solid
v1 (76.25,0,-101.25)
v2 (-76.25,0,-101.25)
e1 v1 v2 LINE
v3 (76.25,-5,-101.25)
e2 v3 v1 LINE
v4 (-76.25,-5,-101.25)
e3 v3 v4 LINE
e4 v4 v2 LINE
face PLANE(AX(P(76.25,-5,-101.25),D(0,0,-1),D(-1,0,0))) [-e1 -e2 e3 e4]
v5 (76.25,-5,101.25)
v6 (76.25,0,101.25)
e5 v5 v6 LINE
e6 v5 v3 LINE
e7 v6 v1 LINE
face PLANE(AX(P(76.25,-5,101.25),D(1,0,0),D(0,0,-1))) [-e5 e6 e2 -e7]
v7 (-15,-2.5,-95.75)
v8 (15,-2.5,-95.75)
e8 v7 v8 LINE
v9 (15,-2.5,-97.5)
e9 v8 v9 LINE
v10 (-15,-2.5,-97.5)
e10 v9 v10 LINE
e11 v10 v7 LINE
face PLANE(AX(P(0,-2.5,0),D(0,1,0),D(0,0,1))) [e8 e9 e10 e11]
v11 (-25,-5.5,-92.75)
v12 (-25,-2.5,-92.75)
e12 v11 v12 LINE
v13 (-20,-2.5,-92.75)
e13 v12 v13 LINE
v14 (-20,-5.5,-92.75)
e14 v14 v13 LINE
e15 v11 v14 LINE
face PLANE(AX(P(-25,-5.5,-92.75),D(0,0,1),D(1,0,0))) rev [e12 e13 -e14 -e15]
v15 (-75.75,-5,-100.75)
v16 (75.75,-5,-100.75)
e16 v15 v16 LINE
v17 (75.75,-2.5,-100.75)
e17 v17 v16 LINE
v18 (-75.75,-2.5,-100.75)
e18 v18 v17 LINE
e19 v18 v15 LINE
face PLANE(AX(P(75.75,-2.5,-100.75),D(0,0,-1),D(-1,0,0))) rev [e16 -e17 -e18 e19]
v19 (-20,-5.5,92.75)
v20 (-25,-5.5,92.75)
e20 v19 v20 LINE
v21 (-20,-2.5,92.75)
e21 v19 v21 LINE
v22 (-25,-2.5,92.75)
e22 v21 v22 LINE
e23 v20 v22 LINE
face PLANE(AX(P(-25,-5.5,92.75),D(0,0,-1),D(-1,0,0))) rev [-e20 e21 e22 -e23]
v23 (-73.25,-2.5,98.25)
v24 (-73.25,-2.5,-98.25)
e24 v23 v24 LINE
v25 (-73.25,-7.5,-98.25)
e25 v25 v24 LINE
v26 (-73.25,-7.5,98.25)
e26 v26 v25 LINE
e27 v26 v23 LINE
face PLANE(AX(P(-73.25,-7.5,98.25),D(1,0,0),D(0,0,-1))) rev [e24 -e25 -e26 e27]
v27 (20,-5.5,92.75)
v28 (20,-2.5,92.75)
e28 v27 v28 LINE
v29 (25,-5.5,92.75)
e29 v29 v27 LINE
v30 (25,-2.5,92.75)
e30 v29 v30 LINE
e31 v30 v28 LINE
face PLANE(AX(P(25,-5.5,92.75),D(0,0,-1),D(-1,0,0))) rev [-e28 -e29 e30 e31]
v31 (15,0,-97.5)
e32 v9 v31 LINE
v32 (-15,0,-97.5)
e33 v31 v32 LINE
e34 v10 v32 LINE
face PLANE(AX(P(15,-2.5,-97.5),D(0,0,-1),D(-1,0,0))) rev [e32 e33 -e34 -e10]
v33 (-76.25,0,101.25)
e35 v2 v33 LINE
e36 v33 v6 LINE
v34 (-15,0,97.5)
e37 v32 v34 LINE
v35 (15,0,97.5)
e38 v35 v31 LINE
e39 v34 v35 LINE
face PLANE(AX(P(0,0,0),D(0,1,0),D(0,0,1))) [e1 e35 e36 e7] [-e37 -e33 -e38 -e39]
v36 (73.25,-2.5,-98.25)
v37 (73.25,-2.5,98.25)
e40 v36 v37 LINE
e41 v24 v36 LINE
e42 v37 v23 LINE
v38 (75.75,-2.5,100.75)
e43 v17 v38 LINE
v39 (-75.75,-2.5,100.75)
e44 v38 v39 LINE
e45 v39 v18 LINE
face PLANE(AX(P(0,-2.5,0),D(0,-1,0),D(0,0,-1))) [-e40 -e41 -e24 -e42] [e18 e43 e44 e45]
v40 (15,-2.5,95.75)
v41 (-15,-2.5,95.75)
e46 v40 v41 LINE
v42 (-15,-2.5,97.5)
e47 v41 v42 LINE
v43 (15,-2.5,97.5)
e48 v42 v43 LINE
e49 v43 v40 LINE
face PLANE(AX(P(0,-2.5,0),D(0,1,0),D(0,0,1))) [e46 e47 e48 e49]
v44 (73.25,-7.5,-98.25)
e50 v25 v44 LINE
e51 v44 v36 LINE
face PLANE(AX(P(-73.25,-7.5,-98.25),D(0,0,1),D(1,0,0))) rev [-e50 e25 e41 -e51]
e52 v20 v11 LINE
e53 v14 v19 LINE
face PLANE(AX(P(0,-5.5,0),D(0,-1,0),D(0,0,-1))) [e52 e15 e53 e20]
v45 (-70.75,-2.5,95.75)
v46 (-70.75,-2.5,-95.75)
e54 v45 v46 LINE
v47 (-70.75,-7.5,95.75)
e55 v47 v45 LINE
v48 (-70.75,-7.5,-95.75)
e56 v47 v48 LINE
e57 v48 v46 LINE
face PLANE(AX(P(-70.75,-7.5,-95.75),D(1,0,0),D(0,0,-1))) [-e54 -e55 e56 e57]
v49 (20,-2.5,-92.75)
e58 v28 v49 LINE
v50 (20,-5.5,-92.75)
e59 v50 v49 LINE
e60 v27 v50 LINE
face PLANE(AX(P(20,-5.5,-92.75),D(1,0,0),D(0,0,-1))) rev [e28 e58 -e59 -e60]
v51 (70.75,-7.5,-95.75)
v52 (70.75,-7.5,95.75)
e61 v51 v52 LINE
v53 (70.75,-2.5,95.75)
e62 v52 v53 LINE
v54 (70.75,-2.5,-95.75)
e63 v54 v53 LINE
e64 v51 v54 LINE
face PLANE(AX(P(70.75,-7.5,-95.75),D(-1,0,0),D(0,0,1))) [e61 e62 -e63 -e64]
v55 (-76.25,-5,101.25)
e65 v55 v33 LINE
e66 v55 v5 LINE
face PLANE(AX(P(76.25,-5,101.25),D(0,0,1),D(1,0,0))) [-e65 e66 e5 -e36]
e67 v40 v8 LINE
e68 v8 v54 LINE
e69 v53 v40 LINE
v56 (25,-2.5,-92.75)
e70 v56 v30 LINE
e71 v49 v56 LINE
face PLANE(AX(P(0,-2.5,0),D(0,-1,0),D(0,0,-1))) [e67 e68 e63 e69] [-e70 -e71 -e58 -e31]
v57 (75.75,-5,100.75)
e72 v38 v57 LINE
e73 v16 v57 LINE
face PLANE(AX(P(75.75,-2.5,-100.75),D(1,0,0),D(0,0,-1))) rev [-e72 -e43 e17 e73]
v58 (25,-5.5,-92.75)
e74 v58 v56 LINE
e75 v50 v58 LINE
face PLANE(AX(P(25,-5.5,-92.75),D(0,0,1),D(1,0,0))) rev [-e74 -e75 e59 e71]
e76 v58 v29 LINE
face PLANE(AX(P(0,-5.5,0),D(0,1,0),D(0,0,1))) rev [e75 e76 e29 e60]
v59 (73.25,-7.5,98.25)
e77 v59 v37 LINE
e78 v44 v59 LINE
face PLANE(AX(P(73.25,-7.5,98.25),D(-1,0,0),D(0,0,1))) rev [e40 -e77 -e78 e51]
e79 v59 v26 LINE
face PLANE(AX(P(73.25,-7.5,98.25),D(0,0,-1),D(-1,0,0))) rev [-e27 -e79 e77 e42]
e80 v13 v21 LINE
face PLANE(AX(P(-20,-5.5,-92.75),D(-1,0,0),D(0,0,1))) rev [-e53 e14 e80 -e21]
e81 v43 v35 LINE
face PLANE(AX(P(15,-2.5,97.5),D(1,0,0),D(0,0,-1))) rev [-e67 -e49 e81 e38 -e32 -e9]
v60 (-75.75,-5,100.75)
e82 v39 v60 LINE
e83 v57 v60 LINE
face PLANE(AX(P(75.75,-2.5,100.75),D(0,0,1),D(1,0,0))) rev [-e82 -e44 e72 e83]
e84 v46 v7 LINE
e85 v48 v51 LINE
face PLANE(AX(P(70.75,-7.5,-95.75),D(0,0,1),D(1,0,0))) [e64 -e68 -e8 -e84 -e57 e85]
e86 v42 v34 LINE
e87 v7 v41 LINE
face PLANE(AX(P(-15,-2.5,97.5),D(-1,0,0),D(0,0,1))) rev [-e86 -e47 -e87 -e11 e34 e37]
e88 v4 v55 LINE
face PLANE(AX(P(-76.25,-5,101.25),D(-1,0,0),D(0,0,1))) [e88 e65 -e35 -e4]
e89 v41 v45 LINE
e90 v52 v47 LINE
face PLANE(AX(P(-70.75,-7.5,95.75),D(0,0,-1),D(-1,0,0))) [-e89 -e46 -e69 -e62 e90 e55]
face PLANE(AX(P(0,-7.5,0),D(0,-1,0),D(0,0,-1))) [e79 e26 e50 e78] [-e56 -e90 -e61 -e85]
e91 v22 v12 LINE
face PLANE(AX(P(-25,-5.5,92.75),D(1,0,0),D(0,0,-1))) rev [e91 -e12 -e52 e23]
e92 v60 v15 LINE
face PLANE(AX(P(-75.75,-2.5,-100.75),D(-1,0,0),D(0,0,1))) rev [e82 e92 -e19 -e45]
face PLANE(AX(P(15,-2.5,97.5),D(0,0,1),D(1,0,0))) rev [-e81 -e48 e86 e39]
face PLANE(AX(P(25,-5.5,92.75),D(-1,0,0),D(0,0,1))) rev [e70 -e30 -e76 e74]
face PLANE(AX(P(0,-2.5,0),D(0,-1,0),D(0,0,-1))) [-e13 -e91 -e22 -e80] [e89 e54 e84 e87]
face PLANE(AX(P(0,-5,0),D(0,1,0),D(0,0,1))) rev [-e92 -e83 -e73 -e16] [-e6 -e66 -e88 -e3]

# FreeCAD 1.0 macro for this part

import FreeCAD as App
import Part
import Sketcher

doc = App.newDocument("Part")
params = doc.addObject("Spreadsheet::Sheet", "Params")
for row, (alias, value) in enumerate([
    ("sketch1_width", "152.5 mm"),
    ("sketch1_height", "202.5 mm"),
    ("pad1_length", "5 mm"),
    ("sketch2_width", "151.5 mm"),
    ("sketch2_height", "201.5 mm"),
    ("pocket1_length", "2.5 mm"),
    ("sketch3_width", "146.5 mm"),
    ("sketch3_width2", "141.5 mm"),
    ("sketch3_height", "196.5 mm"),
    ("sketch3_height2", "191.5 mm"),
    ("pad2_length", "5 mm"),
    ("sketch4_width", "30 mm"),
    ("sketch4_height", "195 mm"),
    ("pocket2_length", "2.5 mm"),
    ("sketch5_width", "5 mm"),
    ("sketch5_height", "185.5 mm"),
    ("pad3_length", "3 mm"),
], start=1):
    params.set(f"A{row}", alias)
    params.set(f"B{row}", "=" + value)
    params.setAlias(f"B{row}", alias)

body = doc.addObject("PartDesign::Body", "Body")

sketch1 = body.newObject("Sketcher::SketchObject", "Sketch")
sketch1.AttachmentSupport = (doc.getObject("XZ_Plane"), [""])
sketch1.MapMode = "FlatFace"
sketch1.addGeometry(Part.LineSegment(App.Vector(-76, -101, 0), App.Vector(-76, 101, 0)), False)
sketch1.addGeometry(Part.LineSegment(App.Vector(-76, 101, 0), App.Vector(76, 101, 0)), False)
sketch1.addGeometry(Part.LineSegment(App.Vector(76, 101, 0), App.Vector(76, -101, 0)), False)
sketch1.addGeometry(Part.LineSegment(App.Vector(76, -101, 0), App.Vector(-76, -101, 0)), False)
sketch1.addConstraint(Sketcher.Constraint("Coincident", 0, 2, 1, 1))
sketch1.addConstraint(Sketcher.Constraint("Coincident", 1, 2, 2, 1))
sketch1.addConstraint(Sketcher.Constraint("Coincident", 2, 2, 3, 1))
sketch1.addConstraint(Sketcher.Constraint("Coincident", 3, 2, 0, 1))
sketch1.addConstraint(Sketcher.Constraint("Vertical", 0))
sketch1.addConstraint(Sketcher.Constraint("Horizontal", 1))
sketch1.addConstraint(Sketcher.Constraint("Vertical", 2))
sketch1.addConstraint(Sketcher.Constraint("Horizontal", 3))
sketch1.addConstraint(Sketcher.Constraint("Symmetric", 0, 2, 2, 2, -1, 1))
sketch1.addConstraint(Sketcher.Constraint("DistanceX", 1, 1, 1, 2, 152.5))
sketch1.addConstraint(Sketcher.Constraint("DistanceY", 0, 1, 0, 2, 202.5))
sketch1.setExpression("Constraints[9]", "Params.sketch1_width")
sketch1.setExpression("Constraints[10]", "Params.sketch1_height")
pad1 = body.newObject("PartDesign::Pad", "Pad")
pad1.Profile = sketch1
pad1.setExpression("Length", "Params.pad1_length")

sketch2 = body.newObject("Sketcher::SketchObject", "Sketch001")
sketch2.AttachmentSupport = (doc.getObject("XZ_Plane"), [""])
sketch2.MapMode = "FlatFace"
sketch2.AttachmentOffset = App.Placement(App.Vector(0, 0, 5), App.Rotation())
sketch2.addGeometry(Part.LineSegment(App.Vector(-76, 101, 0), App.Vector(-76, -101, 0)), False)
sketch2.addGeometry(Part.LineSegment(App.Vector(-76, -101, 0), App.Vector(76, -101, 0)), False)
sketch2.addGeometry(Part.LineSegment(App.Vector(76, -101, 0), App.Vector(76, 101, 0)), False)
sketch2.addGeometry(Part.LineSegment(App.Vector(76, 101, 0), App.Vector(-76, 101, 0)), False)
sketch2.addConstraint(Sketcher.Constraint("Coincident", 0, 2, 1, 1))
sketch2.addConstraint(Sketcher.Constraint("Coincident", 1, 2, 2, 1))
sketch2.addConstraint(Sketcher.Constraint("Coincident", 2, 2, 3, 1))
sketch2.addConstraint(Sketcher.Constraint("Coincident", 3, 2, 0, 1))
sketch2.addConstraint(Sketcher.Constraint("Vertical", 0))
sketch2.addConstraint(Sketcher.Constraint("Horizontal", 1))
sketch2.addConstraint(Sketcher.Constraint("Vertical", 2))
sketch2.addConstraint(Sketcher.Constraint("Horizontal", 3))
sketch2.addConstraint(Sketcher.Constraint("Symmetric", 0, 2, 2, 2, -1, 1))
sketch2.addConstraint(Sketcher.Constraint("DistanceX", 1, 1, 1, 2, 151.5))
sketch2.addConstraint(Sketcher.Constraint("DistanceY", 0, 2, 0, 1, 201.5))
sketch2.setExpression("Constraints[9]", "Params.sketch2_width")
sketch2.setExpression("Constraints[10]", "Params.sketch2_height")
pocket1 = body.newObject("PartDesign::Pocket", "Pocket")
pocket1.Profile = sketch2
pocket1.setExpression("Length", "Params.pocket1_length")

sketch3 = body.newObject("Sketcher::SketchObject", "Sketch002")
sketch3.AttachmentSupport = (doc.getObject("XZ_Plane"), [""])
sketch3.MapMode = "FlatFace"
sketch3.AttachmentOffset = App.Placement(App.Vector(0, 0, 2.5), App.Rotation())
sketch3.addGeometry(Part.LineSegment(App.Vector(-73, 98, 0), App.Vector(-73, -98, 0)), False)
sketch3.addGeometry(Part.LineSegment(App.Vector(-73, -98, 0), App.Vector(73, -98, 0)), False)
sketch3.addGeometry(Part.LineSegment(App.Vector(73, -98, 0), App.Vector(73, 98, 0)), False)
sketch3.addGeometry(Part.LineSegment(App.Vector(73, 98, 0), App.Vector(-73, 98, 0)), False)
sketch3.addGeometry(Part.LineSegment(App.Vector(71, -96, 0), App.Vector(-71, -96, 0)), False)
sketch3.addGeometry(Part.LineSegment(App.Vector(-71, -96, 0), App.Vector(-71, 96, 0)), False)
sketch3.addGeometry(Part.LineSegment(App.Vector(-71, 96, 0), App.Vector(71, 96, 0)), False)
sketch3.addGeometry(Part.LineSegment(App.Vector(71, 96, 0), App.Vector(71, -96, 0)), False)
sketch3.addConstraint(Sketcher.Constraint("Coincident", 0, 2, 1, 1))
sketch3.addConstraint(Sketcher.Constraint("Coincident", 1, 2, 2, 1))
sketch3.addConstraint(Sketcher.Constraint("Coincident", 2, 2, 3, 1))
sketch3.addConstraint(Sketcher.Constraint("Coincident", 3, 2, 0, 1))
sketch3.addConstraint(Sketcher.Constraint("Coincident", 4, 2, 5, 1))
sketch3.addConstraint(Sketcher.Constraint("Coincident", 5, 2, 6, 1))
sketch3.addConstraint(Sketcher.Constraint("Coincident", 6, 2, 7, 1))
sketch3.addConstraint(Sketcher.Constraint("Coincident", 7, 2, 4, 1))
sketch3.addConstraint(Sketcher.Constraint("Vertical", 0))
sketch3.addConstraint(Sketcher.Constraint("Horizontal", 1))
sketch3.addConstraint(Sketcher.Constraint("Vertical", 2))
sketch3.addConstraint(Sketcher.Constraint("Horizontal", 3))
sketch3.addConstraint(Sketcher.Constraint("Horizontal", 4))
sketch3.addConstraint(Sketcher.Constraint("Vertical", 5))
sketch3.addConstraint(Sketcher.Constraint("Horizontal", 6))
sketch3.addConstraint(Sketcher.Constraint("Vertical", 7))
sketch3.addConstraint(Sketcher.Constraint("Symmetric", 0, 2, 2, 2, -1, 1))
sketch3.addConstraint(Sketcher.Constraint("Symmetric", 4, 2, 6, 2, -1, 1))
sketch3.addConstraint(Sketcher.Constraint("DistanceX", 1, 1, 1, 2, 146.5))
sketch3.addConstraint(Sketcher.Constraint("DistanceX", 4, 2, 4, 1, 141.5))
sketch3.addConstraint(Sketcher.Constraint("DistanceY", 0, 2, 0, 1, 196.5))
sketch3.addConstraint(Sketcher.Constraint("DistanceY", 5, 1, 5, 2, 191.5))
sketch3.setExpression("Constraints[18]", "Params.sketch3_width")
sketch3.setExpression("Constraints[19]", "Params.sketch3_width2")
sketch3.setExpression("Constraints[20]", "Params.sketch3_height")
sketch3.setExpression("Constraints[21]", "Params.sketch3_height2")
pad2 = body.newObject("PartDesign::Pad", "Pad001")
pad2.Profile = sketch3
pad2.setExpression("Length", "Params.pad2_length")

sketch4 = body.newObject("Sketcher::SketchObject", "Sketch003")
sketch4.AttachmentSupport = (doc.getObject("XZ_Plane"), [""])
sketch4.MapMode = "FlatFace"
sketch4.addGeometry(Part.LineSegment(App.Vector(-15, -98, 0), App.Vector(-15, 98, 0)), False)
sketch4.addGeometry(Part.LineSegment(App.Vector(-15, 98, 0), App.Vector(15, 98, 0)), False)
sketch4.addGeometry(Part.LineSegment(App.Vector(15, 98, 0), App.Vector(15, -98, 0)), False)
sketch4.addGeometry(Part.LineSegment(App.Vector(15, -98, 0), App.Vector(-15, -98, 0)), False)
sketch4.addConstraint(Sketcher.Constraint("Coincident", 0, 2, 1, 1))
sketch4.addConstraint(Sketcher.Constraint("Coincident", 1, 2, 2, 1))
sketch4.addConstraint(Sketcher.Constraint("Coincident", 2, 2, 3, 1))
sketch4.addConstraint(Sketcher.Constraint("Coincident", 3, 2, 0, 1))
sketch4.addConstraint(Sketcher.Constraint("Vertical", 0))
sketch4.addConstraint(Sketcher.Constraint("Horizontal", 1))
sketch4.addConstraint(Sketcher.Constraint("Vertical", 2))
sketch4.addConstraint(Sketcher.Constraint("Horizontal", 3))
sketch4.addConstraint(Sketcher.Constraint("Symmetric", 0, 2, 2, 2, -1, 1))
sketch4.addConstraint(Sketcher.Constraint("DistanceX", 1, 1, 1, 2, 30.0))
sketch4.addConstraint(Sketcher.Constraint("DistanceY", 0, 1, 0, 2, 195.0))
sketch4.setExpression("Constraints[9]", "Params.sketch4_width")
sketch4.setExpression("Constraints[10]", "Params.sketch4_height")
pocket2 = body.newObject("PartDesign::Pocket", "Pocket001")
pocket2.Profile = sketch4
pocket2.setExpression("Length", "Params.pocket2_length")
pocket2.Reversed = True

sketch5 = body.newObject("Sketcher::SketchObject", "Sketch004")
sketch5.AttachmentSupport = (doc.getObject("XZ_Plane"), [""])
sketch5.MapMode = "FlatFace"
sketch5.AttachmentOffset = App.Placement(App.Vector(0, 0, 2.5), App.Rotation())
sketch5.addGeometry(Part.LineSegment(App.Vector(-25, 93, 0), App.Vector(-25, -93, 0)), False)
sketch5.addGeometry(Part.LineSegment(App.Vector(-25, -93, 0), App.Vector(-20, -93, 0)), False)
sketch5.addGeometry(Part.LineSegment(App.Vector(-20, -93, 0), App.Vector(-20, 93, 0)), False)
sketch5.addGeometry(Part.LineSegment(App.Vector(-20, 93, 0), App.Vector(-25, 93, 0)), False)
sketch5.addGeometry(Part.LineSegment(App.Vector(20, 93, 0), App.Vector(20, -93, 0)), False)
sketch5.addGeometry(Part.LineSegment(App.Vector(20, -93, 0), App.Vector(25, -93, 0)), False)
sketch5.addGeometry(Part.LineSegment(App.Vector(25, -93, 0), App.Vector(25, 93, 0)), False)
sketch5.addGeometry(Part.LineSegment(App.Vector(25, 93, 0), App.Vector(20, 93, 0)), False)
sketch5.addConstraint(Sketcher.Constraint("Coincident", 0, 2, 1, 1))
sketch5.addConstraint(Sketcher.Constraint("Coincident", 1, 2, 2, 1))
sketch5.addConstraint(Sketcher.Constraint("Coincident", 2, 2, 3, 1))
sketch5.addConstraint(Sketcher.Constraint("Coincident", 3, 2, 0, 1))
sketch5.addConstraint(Sketcher.Constraint("Coincident", 4, 2, 5, 1))
sketch5.addConstraint(Sketcher.Constraint("Coincident", 5, 2, 6, 1))
sketch5.addConstraint(Sketcher.Constraint("Coincident", 6, 2, 7, 1))
sketch5.addConstraint(Sketcher.Constraint("Coincident", 7, 2, 4, 1))
sketch5.addConstraint(Sketcher.Constraint("Vertical", 0))
sketch5.addConstraint(Sketcher.Constraint("Horizontal", 1))
sketch5.addConstraint(Sketcher.Constraint("Vertical", 2))
sketch5.addConstraint(Sketcher.Constraint("Horizontal", 3))
sketch5.addConstraint(Sketcher.Constraint("Vertical", 4))
sketch5.addConstraint(Sketcher.Constraint("Horizontal", 5))
sketch5.addConstraint(Sketcher.Constraint("Vertical", 6))
sketch5.addConstraint(Sketcher.Constraint("Horizontal", 7))
sketch5.addConstraint(Sketcher.Constraint("Symmetric", 2, 2, 4, 2, -1, 1))
sketch5.addConstraint(Sketcher.Constraint("Symmetric", 0, 2, 6, 2, -1, 1))
sketch5.addConstraint(Sketcher.Constraint("Horizontal", 1, 2, 4, 2))
sketch5.addConstraint(Sketcher.Constraint("DistanceX", 1, 1, 1, 2, 5.0))
sketch5.addConstraint(Sketcher.Constraint("DistanceY", 0, 2, 0, 1, 185.5))
sketch5.addConstraint(Sketcher.Constraint("DistanceX", 0, 2, -1, 1, 25.0))
sketch5.setExpression("Constraints[19]", "Params.sketch5_width")
sketch5.setExpression("Constraints[20]", "Params.sketch5_height")
pad3 = body.newObject("PartDesign::Pad", "Pad002")
pad3.Profile = sketch5
pad3.setExpression("Length", "Params.pad3_length")

doc.recompute()
